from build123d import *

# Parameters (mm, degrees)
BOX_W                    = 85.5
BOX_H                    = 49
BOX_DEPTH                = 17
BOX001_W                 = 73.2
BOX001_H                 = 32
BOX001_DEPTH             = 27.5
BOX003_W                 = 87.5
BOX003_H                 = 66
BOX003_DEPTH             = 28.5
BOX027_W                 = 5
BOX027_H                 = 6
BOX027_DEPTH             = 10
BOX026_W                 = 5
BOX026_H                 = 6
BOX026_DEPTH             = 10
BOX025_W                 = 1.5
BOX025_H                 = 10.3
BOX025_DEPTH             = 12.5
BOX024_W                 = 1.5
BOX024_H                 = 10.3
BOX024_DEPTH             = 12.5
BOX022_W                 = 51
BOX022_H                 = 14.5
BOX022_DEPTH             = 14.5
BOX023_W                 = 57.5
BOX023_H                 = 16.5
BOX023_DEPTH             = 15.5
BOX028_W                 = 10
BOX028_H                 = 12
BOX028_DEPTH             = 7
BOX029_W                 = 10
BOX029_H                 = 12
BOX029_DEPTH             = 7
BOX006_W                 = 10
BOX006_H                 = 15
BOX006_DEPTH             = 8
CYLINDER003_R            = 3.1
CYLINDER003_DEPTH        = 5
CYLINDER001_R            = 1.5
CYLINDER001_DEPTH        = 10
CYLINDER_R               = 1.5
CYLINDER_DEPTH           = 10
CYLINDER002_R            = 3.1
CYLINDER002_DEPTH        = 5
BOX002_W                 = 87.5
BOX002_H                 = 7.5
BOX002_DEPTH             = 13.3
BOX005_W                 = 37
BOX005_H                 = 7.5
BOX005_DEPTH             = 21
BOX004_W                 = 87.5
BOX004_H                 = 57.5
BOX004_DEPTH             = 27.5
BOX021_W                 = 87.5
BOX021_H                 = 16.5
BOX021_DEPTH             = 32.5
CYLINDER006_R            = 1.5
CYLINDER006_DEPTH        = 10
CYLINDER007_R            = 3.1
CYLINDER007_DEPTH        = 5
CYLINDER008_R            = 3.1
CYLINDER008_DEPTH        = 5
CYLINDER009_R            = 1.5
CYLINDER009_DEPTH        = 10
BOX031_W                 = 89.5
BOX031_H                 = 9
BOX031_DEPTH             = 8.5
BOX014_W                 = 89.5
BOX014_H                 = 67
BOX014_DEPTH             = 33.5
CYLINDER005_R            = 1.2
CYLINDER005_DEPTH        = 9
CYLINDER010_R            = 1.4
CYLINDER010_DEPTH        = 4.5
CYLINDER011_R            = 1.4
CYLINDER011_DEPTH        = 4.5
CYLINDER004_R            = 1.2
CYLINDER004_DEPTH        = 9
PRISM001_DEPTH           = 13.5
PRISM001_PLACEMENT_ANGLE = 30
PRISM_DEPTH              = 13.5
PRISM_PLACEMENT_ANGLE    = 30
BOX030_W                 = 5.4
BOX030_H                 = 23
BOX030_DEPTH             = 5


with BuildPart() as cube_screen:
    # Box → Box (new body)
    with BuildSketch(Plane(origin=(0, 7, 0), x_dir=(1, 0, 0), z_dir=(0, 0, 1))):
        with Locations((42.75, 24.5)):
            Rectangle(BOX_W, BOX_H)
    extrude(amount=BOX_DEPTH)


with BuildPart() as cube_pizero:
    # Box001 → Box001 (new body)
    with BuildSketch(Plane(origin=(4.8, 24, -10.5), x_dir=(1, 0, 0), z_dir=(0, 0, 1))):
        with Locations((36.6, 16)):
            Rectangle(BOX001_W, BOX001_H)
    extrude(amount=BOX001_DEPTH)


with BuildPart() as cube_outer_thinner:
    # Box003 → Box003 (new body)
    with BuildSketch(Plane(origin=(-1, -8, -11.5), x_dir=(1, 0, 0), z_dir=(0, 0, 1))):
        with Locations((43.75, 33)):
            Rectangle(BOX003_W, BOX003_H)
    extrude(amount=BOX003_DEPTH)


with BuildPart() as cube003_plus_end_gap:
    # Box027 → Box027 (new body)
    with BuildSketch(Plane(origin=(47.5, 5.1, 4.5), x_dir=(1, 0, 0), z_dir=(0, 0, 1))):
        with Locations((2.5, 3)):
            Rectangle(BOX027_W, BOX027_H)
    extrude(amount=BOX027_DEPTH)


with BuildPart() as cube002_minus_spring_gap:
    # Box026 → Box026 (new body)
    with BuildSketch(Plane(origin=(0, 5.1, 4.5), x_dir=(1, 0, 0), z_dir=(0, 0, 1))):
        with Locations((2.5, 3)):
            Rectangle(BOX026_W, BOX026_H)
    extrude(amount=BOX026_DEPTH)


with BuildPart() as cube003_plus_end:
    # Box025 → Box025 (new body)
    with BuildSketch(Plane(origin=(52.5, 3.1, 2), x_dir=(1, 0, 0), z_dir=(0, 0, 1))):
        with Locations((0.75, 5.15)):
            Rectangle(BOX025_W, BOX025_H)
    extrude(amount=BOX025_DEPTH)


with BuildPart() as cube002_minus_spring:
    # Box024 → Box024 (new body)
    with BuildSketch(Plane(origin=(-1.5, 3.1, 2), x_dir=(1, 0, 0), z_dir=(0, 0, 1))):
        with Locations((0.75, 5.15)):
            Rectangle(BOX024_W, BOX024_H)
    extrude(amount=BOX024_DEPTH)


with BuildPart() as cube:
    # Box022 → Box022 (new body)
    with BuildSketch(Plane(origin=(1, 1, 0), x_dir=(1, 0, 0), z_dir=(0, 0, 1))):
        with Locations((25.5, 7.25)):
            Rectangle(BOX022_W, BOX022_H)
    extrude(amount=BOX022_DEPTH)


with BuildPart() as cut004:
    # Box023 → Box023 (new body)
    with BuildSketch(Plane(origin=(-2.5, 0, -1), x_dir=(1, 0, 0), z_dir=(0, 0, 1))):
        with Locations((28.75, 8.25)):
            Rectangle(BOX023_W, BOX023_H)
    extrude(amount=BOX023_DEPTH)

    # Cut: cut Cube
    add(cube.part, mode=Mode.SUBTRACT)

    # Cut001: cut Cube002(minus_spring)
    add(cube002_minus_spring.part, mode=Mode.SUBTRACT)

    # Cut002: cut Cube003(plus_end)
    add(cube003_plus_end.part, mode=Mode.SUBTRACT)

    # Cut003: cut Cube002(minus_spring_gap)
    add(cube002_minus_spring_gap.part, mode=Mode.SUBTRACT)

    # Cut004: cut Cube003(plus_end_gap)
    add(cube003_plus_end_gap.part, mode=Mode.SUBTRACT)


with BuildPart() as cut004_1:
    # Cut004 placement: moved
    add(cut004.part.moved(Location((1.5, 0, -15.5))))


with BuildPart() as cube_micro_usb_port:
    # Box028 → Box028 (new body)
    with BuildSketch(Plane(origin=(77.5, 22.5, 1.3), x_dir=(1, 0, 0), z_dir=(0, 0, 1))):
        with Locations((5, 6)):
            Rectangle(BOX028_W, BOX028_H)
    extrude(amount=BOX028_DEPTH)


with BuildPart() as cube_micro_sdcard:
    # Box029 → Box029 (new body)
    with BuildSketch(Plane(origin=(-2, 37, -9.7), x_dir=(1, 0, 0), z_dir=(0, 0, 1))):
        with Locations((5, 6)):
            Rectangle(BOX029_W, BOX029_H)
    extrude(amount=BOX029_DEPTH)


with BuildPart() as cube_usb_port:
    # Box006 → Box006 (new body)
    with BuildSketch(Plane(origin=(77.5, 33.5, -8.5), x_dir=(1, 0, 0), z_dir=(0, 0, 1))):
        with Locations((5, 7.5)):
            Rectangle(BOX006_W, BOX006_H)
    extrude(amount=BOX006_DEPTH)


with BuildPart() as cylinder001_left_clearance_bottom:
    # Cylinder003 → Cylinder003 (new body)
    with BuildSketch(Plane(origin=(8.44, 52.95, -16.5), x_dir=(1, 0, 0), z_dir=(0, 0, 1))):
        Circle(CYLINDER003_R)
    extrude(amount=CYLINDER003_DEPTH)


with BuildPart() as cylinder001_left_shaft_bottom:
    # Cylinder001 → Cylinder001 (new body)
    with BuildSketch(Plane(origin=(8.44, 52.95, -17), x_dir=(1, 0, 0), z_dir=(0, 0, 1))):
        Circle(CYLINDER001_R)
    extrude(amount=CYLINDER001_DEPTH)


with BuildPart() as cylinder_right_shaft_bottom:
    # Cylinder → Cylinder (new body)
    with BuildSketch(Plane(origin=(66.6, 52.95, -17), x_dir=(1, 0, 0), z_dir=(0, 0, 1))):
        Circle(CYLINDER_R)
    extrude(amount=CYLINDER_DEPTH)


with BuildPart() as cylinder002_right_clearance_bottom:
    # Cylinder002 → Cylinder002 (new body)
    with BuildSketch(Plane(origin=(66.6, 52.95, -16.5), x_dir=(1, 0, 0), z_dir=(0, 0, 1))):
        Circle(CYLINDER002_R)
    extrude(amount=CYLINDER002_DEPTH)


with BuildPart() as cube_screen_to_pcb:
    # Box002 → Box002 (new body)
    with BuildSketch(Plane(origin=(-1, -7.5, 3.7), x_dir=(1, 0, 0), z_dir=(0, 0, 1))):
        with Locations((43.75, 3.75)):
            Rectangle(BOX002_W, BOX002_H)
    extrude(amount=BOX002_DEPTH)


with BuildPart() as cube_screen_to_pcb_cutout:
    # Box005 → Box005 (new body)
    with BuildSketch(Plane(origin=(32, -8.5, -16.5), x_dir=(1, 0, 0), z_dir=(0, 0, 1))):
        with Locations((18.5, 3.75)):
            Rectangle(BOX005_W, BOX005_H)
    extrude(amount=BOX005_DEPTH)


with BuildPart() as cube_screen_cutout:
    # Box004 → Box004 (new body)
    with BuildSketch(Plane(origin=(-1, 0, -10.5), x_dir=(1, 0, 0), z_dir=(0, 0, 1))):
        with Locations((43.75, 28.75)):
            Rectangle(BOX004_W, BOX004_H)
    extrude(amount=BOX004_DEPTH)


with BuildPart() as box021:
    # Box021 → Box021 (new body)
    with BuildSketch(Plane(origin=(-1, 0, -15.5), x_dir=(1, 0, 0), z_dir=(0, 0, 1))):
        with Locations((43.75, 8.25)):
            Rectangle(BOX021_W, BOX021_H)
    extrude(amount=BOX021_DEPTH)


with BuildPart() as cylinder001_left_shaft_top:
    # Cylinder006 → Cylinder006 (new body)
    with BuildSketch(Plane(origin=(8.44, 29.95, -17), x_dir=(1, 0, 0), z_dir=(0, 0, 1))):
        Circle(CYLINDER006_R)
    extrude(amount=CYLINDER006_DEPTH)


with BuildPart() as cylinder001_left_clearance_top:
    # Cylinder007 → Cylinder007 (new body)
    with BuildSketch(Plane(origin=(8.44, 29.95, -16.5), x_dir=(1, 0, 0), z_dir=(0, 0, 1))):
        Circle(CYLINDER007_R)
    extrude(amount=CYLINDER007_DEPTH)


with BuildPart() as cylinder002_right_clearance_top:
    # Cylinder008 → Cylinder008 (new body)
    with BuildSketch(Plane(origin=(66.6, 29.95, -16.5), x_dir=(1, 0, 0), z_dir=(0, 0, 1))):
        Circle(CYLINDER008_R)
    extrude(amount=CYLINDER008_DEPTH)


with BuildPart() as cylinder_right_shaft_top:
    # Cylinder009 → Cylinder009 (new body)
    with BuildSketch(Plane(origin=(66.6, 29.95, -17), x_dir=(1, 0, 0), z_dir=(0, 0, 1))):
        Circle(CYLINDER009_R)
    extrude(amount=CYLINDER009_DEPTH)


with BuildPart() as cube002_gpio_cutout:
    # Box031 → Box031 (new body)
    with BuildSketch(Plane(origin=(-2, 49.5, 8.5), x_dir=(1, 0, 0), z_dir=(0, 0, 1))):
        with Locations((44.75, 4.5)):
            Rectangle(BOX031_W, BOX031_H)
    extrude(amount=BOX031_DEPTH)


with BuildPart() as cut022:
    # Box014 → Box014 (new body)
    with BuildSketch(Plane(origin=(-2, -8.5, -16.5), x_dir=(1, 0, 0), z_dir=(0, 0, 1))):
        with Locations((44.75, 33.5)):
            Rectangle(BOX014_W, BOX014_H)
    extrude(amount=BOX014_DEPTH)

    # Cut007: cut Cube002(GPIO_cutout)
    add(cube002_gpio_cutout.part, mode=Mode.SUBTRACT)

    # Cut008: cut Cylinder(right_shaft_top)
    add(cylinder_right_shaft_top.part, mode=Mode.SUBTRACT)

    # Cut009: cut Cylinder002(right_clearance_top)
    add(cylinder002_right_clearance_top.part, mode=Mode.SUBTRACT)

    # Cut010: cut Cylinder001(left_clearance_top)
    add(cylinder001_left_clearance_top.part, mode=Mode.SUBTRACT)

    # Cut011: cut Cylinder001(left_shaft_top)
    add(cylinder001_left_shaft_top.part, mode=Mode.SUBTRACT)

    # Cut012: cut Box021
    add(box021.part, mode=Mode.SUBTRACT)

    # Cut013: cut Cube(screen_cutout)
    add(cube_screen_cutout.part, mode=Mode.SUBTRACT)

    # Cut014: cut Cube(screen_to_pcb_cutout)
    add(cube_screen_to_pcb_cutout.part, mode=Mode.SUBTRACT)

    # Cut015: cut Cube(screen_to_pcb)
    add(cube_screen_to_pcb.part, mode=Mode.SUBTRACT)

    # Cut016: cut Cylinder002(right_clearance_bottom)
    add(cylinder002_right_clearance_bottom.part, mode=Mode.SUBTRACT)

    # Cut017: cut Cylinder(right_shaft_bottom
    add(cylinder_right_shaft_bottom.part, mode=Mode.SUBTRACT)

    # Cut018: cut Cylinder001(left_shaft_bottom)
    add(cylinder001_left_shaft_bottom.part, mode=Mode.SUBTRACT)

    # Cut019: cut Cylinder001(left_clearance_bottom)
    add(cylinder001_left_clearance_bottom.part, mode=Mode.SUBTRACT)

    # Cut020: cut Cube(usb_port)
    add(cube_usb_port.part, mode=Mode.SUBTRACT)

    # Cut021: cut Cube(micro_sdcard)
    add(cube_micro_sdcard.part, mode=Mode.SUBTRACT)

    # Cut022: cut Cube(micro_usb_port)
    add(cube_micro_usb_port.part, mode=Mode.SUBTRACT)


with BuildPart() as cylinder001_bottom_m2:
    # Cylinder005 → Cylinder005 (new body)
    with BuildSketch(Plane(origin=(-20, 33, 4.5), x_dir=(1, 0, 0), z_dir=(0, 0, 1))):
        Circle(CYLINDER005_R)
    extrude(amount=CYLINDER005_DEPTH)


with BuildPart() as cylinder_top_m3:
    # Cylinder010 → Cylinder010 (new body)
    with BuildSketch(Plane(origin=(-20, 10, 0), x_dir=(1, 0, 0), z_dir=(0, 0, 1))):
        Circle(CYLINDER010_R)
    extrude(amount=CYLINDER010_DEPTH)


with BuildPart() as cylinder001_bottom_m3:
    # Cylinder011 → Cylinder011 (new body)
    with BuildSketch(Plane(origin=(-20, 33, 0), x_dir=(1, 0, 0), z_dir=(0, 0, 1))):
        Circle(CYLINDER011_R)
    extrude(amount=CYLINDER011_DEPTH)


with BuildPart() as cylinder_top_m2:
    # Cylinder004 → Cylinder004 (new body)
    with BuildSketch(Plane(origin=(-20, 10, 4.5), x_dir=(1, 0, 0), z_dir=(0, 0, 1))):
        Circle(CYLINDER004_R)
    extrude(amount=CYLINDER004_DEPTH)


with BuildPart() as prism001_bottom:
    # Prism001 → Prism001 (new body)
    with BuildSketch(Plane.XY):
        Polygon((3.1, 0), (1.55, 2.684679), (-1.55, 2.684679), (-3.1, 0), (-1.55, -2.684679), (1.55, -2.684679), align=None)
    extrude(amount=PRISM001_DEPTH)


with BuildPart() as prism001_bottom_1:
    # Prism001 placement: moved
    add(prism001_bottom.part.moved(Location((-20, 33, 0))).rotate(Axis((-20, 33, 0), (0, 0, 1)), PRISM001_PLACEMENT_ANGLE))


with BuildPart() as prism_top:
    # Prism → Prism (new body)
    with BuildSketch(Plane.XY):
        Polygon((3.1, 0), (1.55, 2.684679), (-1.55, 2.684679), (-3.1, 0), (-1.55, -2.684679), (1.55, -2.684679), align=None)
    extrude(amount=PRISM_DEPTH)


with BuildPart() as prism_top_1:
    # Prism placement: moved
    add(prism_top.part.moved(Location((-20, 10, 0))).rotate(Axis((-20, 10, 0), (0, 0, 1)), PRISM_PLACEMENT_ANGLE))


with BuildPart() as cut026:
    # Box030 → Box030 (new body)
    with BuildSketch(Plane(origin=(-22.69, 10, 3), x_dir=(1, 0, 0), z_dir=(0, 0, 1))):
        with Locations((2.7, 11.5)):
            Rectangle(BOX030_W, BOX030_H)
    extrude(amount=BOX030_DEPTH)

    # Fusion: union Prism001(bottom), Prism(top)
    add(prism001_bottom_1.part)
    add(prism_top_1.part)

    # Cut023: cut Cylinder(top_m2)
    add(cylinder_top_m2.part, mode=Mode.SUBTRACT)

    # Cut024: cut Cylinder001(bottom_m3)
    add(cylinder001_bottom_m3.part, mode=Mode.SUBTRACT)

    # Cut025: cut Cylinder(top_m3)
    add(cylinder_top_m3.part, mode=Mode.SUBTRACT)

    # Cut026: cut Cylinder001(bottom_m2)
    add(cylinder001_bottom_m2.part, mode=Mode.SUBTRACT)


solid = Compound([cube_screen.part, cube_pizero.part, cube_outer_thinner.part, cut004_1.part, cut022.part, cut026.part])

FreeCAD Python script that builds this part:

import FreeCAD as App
import Part
import Sketcher
from FreeCAD import Vector
Q = App.Units.Quantity


def add_polygon(sketch, points):
    """Adds a closed chain of lines whose ends are joined by coincident constraints."""
    first, n = sketch.GeometryCount, len(points)
    for a, b in zip(points, points[1:] + points[:1]):
        sketch.addGeometry(Part.LineSegment(App.Vector(*a, 0), App.Vector(*b, 0)), False)
    for i in range(n):
        sketch.addConstraint(Sketcher.Constraint("Coincident", first + i, 2, first + (i + 1) % n, 1))

doc = App.newDocument("Part")
params = doc.addObject("Spreadsheet::Sheet", "Params")
for row, (alias, value) in enumerate([
    ("sketch1_height", "49 mm"),
    ("sketch1_width", "85.5 mm"),
    ("pad1_length", "17 mm"),
    ("sketch2_height", "32 mm"),
    ("sketch2_width", "73.2 mm"),
    ("pad2_length", "27.5 mm"),
    ("sketch3_height", "66 mm"),
    ("sketch3_width", "87.5 mm"),
    ("pad3_length", "28.5 mm"),
    ("sketch4_width", "5 mm"),
    ("sketch4_height", "6 mm"),
    ("pad4_length", "10 mm"),
    ("sketch5_width", "5 mm"),
    ("sketch5_height", "6 mm"),
    ("pad5_length", "10 mm"),
    ("sketch6_width", "1.5 mm"),
    ("sketch6_height", "10.3 mm"),
    ("pad6_length", "12.5 mm"),
    ("sketch7_width", "1.5 mm"),
    ("sketch7_height", "10.3 mm"),
    ("pad7_length", "12.5 mm"),
    ("sketch8_width", "51 mm"),
    ("sketch8_height", "14.5 mm"),
    ("pad8_length", "14.5 mm"),
    ("sketch9_width", "57.5 mm"),
    ("sketch9_height", "16.5 mm"),
    ("pad9_length", "15.5 mm"),
    ("sketch10_width", "10 mm"),
    ("sketch10_height", "12 mm"),
    ("pad10_length", "7 mm"),
    ("sketch11_width", "10 mm"),
    ("sketch11_height", "12 mm"),
    ("pad11_length", "7 mm"),
    ("sketch12_width", "10 mm"),
    ("sketch12_height", "15 mm"),
    ("pad12_length", "8 mm"),
    ("sketch13_diameter", "6.2 mm"),
    ("pad13_length", "5 mm"),
    ("sketch14_diameter", "3 mm"),
    ("pad14_length", "10 mm"),
    ("sketch15_diameter", "3 mm"),
    ("pad15_length", "10 mm"),
    ("sketch16_diameter", "6.2 mm"),
    ("pad16_length", "5 mm"),
    ("sketch17_width", "87.5 mm"),
    ("sketch17_height", "7.5 mm"),
    ("pad17_length", "13.3 mm"),
    ("sketch18_width", "37 mm"),
    ("sketch18_height", "7.5 mm"),
    ("pad18_length", "21 mm"),
    ("sketch19_width", "87.5 mm"),
    ("sketch19_height", "57.5 mm"),
    ("pad19_length", "27.5 mm"),
    ("sketch20_width", "87.5 mm"),
    ("sketch20_height", "16.5 mm"),
    ("pad20_length", "32.5 mm"),
    ("sketch21_diameter", "3 mm"),
    ("pad21_length", "10 mm"),
    ("sketch22_diameter", "6.2 mm"),
    ("pad22_length", "5 mm"),
    ("sketch23_diameter", "6.2 mm"),
    ("pad23_length", "5 mm"),
    ("sketch24_diameter", "3 mm"),
    ("pad24_length", "10 mm"),
    ("sketch25_height", "9 mm"),
    ("sketch25_width", "89.5 mm"),
    ("pad25_length", "8.5 mm"),
    ("sketch26_height", "67 mm"),
    ("sketch26_width", "89.5 mm"),
    ("pad26_length", "33.5 mm"),
    ("sketch27_diameter", "2.4 mm"),
    ("pad27_length", "9 mm"),
    ("sketch28_diameter", "2.8 mm"),
    ("pad28_length", "4.5 mm"),
    ("sketch29_diameter", "2.8 mm"),
    ("pad29_length", "4.5 mm"),
    ("sketch30_diameter", "2.4 mm"),
    ("pad30_length", "9 mm"),
    ("sketch31_width", "3.1 mm"),
    ("sketch31_length", "3.1 mm"),
    ("pad31_length", "13.5 mm"),
    ("sketch32_width", "3.1 mm"),
    ("sketch32_length", "3.1 mm"),
    ("pad32_length", "13.5 mm"),
    ("sketch33_height", "23 mm"),
    ("sketch33_width", "5.4 mm"),
    ("pad33_length", "5 mm"),
], start=1):
    params.set(f"A{row}", alias)
    params.set(f"B{row}", "=" + value)
    params.setAlias(f"B{row}", alias)

body = doc.addObject("PartDesign::Body", "Body")

# Sketch on XY plane
sketch1 = body.newObject("Sketcher::SketchObject", "Sketch")
sketch1.AttachmentSupport = (doc.getObject("XY_Plane"), [""])
sketch1.MapMode = "FlatFace"
add_polygon(sketch1, [(0, 56), (0, 7), (86, 7), (86, 56)])  # lines 0-3
sketch1.addConstraint([
    Sketcher.Constraint("Vertical", 0),
    Sketcher.Constraint("Horizontal", 1),
    Sketcher.Constraint("Vertical", 2),
    Sketcher.Constraint("Horizontal", 3),
    Sketcher.Constraint("PointOnObject", 0, 2, -2),
    Sketcher.Constraint("DistanceY", 0, 2, 0, 1, 49.0),
    Sketcher.Constraint("DistanceX", 1, 1, 1, 2, 85.5),
    Sketcher.Constraint("DistanceY", -1, 1, 0, 2, 7.0),
])
sketch1.setExpression("Constraints[9]", "Params.sketch1_height")
sketch1.setExpression("Constraints[10]", "Params.sketch1_width")
pad1 = body.newObject("PartDesign::Pad", "Pad")
pad1.Profile = sketch1
pad1.setExpression("Length", "Params.pad1_length")
body2 = doc.addObject("PartDesign::Body", "Body001")

# Sketch on XY plane
sketch2 = body2.newObject("Sketcher::SketchObject", "Sketch001")
sketch2.AttachmentSupport = (doc.getObject("XY_Plane001"), [""])
sketch2.MapMode = "FlatFace"
sketch2.AttachmentOffset = App.Placement(Vector(0, 0, -10.5), App.Rotation())
add_polygon(sketch2, [(5, 56), (5, 24), (78, 24), (78, 56)])  # lines 0-3
sketch2.addConstraint([
    Sketcher.Constraint("Vertical", 0),
    Sketcher.Constraint("Horizontal", 1),
    Sketcher.Constraint("Vertical", 2),
    Sketcher.Constraint("Horizontal", 3),
    Sketcher.Constraint("DistanceY", 0, 2, 0, 1, 32.0),
    Sketcher.Constraint("DistanceX", 1, 1, 1, 2, 73.2),
    Sketcher.Constraint("DistanceY", -1, 1, 0, 2, 24.0),
    Sketcher.Constraint("DistanceX", -1, 1, 1, 2, 78.0),
])
sketch2.setExpression("Constraints[8]", "Params.sketch2_height")
sketch2.setExpression("Constraints[9]", "Params.sketch2_width")
pad2 = body2.newObject("PartDesign::Pad", "Pad001")
pad2.Profile = sketch2
pad2.setExpression("Length", "Params.pad2_length")
body3 = doc.addObject("PartDesign::Body", "Body002")

# Sketch on XY plane
sketch3 = body3.newObject("Sketcher::SketchObject", "Sketch002")
sketch3.AttachmentSupport = (doc.getObject("XY_Plane002"), [""])
sketch3.MapMode = "FlatFace"
sketch3.AttachmentOffset = App.Placement(Vector(0, 0, -11.5), App.Rotation())
add_polygon(sketch3, [(-1, 58), (-1, -8), (86, -8), (86, 58)])  # lines 0-3
sketch3.addConstraint([
    Sketcher.Constraint("Vertical", 0),
    Sketcher.Constraint("Horizontal", 1),
    Sketcher.Constraint("Vertical", 2),
    Sketcher.Constraint("Horizontal", 3),
    Sketcher.Constraint("DistanceY", 0, 2, 0, 1, 66.0),
    Sketcher.Constraint("DistanceX", 1, 1, 1, 2, 87.5),
    Sketcher.Constraint("DistanceX", 0, 2, -1, 1, 1.0),
    Sketcher.Constraint("DistanceY", 0, 2, -1, 1, 8.0),
])
sketch3.setExpression("Constraints[8]", "Params.sketch3_height")
sketch3.setExpression("Constraints[9]", "Params.sketch3_width")
pad3 = body3.newObject("PartDesign::Pad", "Pad002")
pad3.Profile = sketch3
pad3.setExpression("Length", "Params.pad3_length")
body4 = doc.addObject("PartDesign::Body", "Body003")

# Sketch on XY plane
sketch4 = body4.newObject("Sketcher::SketchObject", "Sketch003")
sketch4.AttachmentSupport = (doc.getObject("XY_Plane003"), [""])
sketch4.MapMode = "FlatFace"
sketch4.AttachmentOffset = App.Placement(Vector(0, 0, 4.5), App.Rotation())
add_polygon(sketch4, [(48, 11), (48, 5), (52, 5), (52, 11)])  # lines 0-3
sketch4.addConstraint([
    Sketcher.Constraint("Vertical", 0),
    Sketcher.Constraint("Horizontal", 1),
    Sketcher.Constraint("Vertical", 2),
    Sketcher.Constraint("Horizontal", 3),
    Sketcher.Constraint("DistanceX", 1, 1, 1, 2, 5.0),
    Sketcher.Constraint("DistanceY", 0, 2, 0, 1, 6.0),
    Sketcher.Constraint("DistanceX", -1, 1, 0, 2, 47.5),
    Sketcher.Constraint("DistanceY", -1, 1, 0, 2, 5.1),
])
sketch4.setExpression("Constraints[8]", "Params.sketch4_width")
sketch4.setExpression("Constraints[9]", "Params.sketch4_height")
pad4 = body4.newObject("PartDesign::Pad", "Pad003")
pad4.Profile = sketch4
pad4.setExpression("Length", "Params.pad4_length")
body5 = doc.addObject("PartDesign::Body", "Body004")

# Sketch on XY plane
sketch5 = body5.newObject("Sketcher::SketchObject", "Sketch004")
sketch5.AttachmentSupport = (doc.getObject("XY_Plane004"), [""])
sketch5.MapMode = "FlatFace"
sketch5.AttachmentOffset = App.Placement(Vector(0, 0, 4.5), App.Rotation())
add_polygon(sketch5, [(0, 11), (0, 5), (5, 5), (5, 11)])  # lines 0-3
sketch5.addConstraint([
    Sketcher.Constraint("Vertical", 0),
    Sketcher.Constraint("Horizontal", 1),
    Sketcher.Constraint("Vertical", 2),
    Sketcher.Constraint("Horizontal", 3),
    Sketcher.Constraint("PointOnObject", 0, 2, -2),
    Sketcher.Constraint("DistanceX", 1, 1, 1, 2, 5.0),
    Sketcher.Constraint("DistanceY", 0, 2, 0, 1, 6.0),
    Sketcher.Constraint("DistanceY", -1, 1, 0, 2, 5.1),
])
sketch5.setExpression("Constraints[9]", "Params.sketch5_width")
sketch5.setExpression("Constraints[10]", "Params.sketch5_height")
pad5 = body5.newObject("PartDesign::Pad", "Pad004")
pad5.Profile = sketch5
pad5.setExpression("Length", "Params.pad5_length")
body6 = doc.addObject("PartDesign::Body", "Body005")

# Sketch on XY plane
sketch6 = body6.newObject("Sketcher::SketchObject", "Sketch005")
sketch6.AttachmentSupport = (doc.getObject("XY_Plane005"), [""])
sketch6.MapMode = "FlatFace"
sketch6.AttachmentOffset = App.Placement(Vector(0, 0, 2), App.Rotation())
add_polygon(sketch6, [(52.5, 13.4), (52.5, 3.1), (54, 3.1), (54, 13.4)])  # lines 0-3
sketch6.addConstraint([
    Sketcher.Constraint("Vertical", 0),
    Sketcher.Constraint("Horizontal", 1),
    Sketcher.Constraint("Vertical", 2),
    Sketcher.Constraint("Horizontal", 3),
    Sketcher.Constraint("DistanceX", 1, 1, 1, 2, 1.5),
    Sketcher.Constraint("DistanceY", 0, 2, 0, 1, 10.3),
    Sketcher.Constraint("DistanceX", -1, 1, 1, 2, 54.0),
    Sketcher.Constraint("DistanceY", -1, 1, 0, 2, 3.1),
])
sketch6.setExpression("Constraints[8]", "Params.sketch6_width")
sketch6.setExpression("Constraints[9]", "Params.sketch6_height")
pad6 = body6.newObject("PartDesign::Pad", "Pad005")
pad6.Profile = sketch6
pad6.setExpression("Length", "Params.pad6_length")
body7 = doc.addObject("PartDesign::Body", "Body006")

# Sketch on XY plane
sketch7 = body7.newObject("Sketcher::SketchObject", "Sketch006")
sketch7.AttachmentSupport = (doc.getObject("XY_Plane006"), [""])
sketch7.MapMode = "FlatFace"
sketch7.AttachmentOffset = App.Placement(Vector(0, 0, 2), App.Rotation())
add_polygon(sketch7, [(-1.5, 13.4), (-1.5, 3.1), (0, 3.1), (0, 13.4)])  # lines 0-3
sketch7.addConstraint([
    Sketcher.Constraint("Vertical", 0),
    Sketcher.Constraint("Horizontal", 1),
    Sketcher.Constraint("Vertical", 2),
    Sketcher.Constraint("Horizontal", 3),
    Sketcher.Constraint("PointOnObject", 1, 2, -2),
    Sketcher.Constraint("DistanceX", 1, 1, 1, 2, 1.5),
    Sketcher.Constraint("DistanceY", 0, 2, 0, 1, 10.3),
    Sketcher.Constraint("DistanceY", -1, 1, 0, 2, 3.1),
])
sketch7.setExpression("Constraints[9]", "Params.sketch7_width")
sketch7.setExpression("Constraints[10]", "Params.sketch7_height")
pad7 = body7.newObject("PartDesign::Pad", "Pad006")
pad7.Profile = sketch7
pad7.setExpression("Length", "Params.pad7_length")
body8 = doc.addObject("PartDesign::Body", "Body007")

# Sketch on XY plane
sketch8 = body8.newObject("Sketcher::SketchObject", "Sketch007")
sketch8.AttachmentSupport = (doc.getObject("XY_Plane007"), [""])
sketch8.MapMode = "FlatFace"
add_polygon(sketch8, [(1, 16), (1, 1), (52, 1), (52, 16)])  # lines 0-3
sketch8.addConstraint([
    Sketcher.Constraint("Vertical", 0),
    Sketcher.Constraint("Horizontal", 1),
    Sketcher.Constraint("Vertical", 2),
    Sketcher.Constraint("Horizontal", 3),
    Sketcher.Constraint("DistanceX", 1, 1, 1, 2, 51.0),
    Sketcher.Constraint("DistanceY", 0, 2, 0, 1, 14.5),
    Sketcher.Constraint("DistanceX", -1, 1, 0, 2, 1.0),
    Sketcher.Constraint("DistanceY", -1, 1, 0, 2, 1.0),
])
sketch8.setExpression("Constraints[8]", "Params.sketch8_width")
sketch8.setExpression("Constraints[9]", "Params.sketch8_height")
pad8 = body8.newObject("PartDesign::Pad", "Pad007")
pad8.Profile = sketch8
pad8.setExpression("Length", "Params.pad8_length")
body9 = doc.addObject("PartDesign::Body", "Body008")

# Sketch on XY plane
sketch9 = body9.newObject("Sketcher::SketchObject", "Sketch008")
sketch9.AttachmentSupport = (doc.getObject("XY_Plane008"), [""])
sketch9.MapMode = "FlatFace"
sketch9.AttachmentOffset = App.Placement(Vector(0, 0, -1), App.Rotation())
add_polygon(sketch9, [(-2, 16), (-2, 0), (55, 0), (55, 16)])  # lines 0-3
sketch9.addConstraint([
    Sketcher.Constraint("Vertical", 0),
    Sketcher.Constraint("Horizontal", 1),
    Sketcher.Constraint("Vertical", 2),
    Sketcher.Constraint("Horizontal", 3),
    Sketcher.Constraint("PointOnObject", 0, 2, -1),
    Sketcher.Constraint("DistanceX", 1, 1, 1, 2, 57.5),
    Sketcher.Constraint("DistanceY", 0, 2, 0, 1, 16.5),
    Sketcher.Constraint("DistanceX", -1, 1, 1, 2, 55.0),
])
sketch9.setExpression("Constraints[9]", "Params.sketch9_width")
sketch9.setExpression("Constraints[10]", "Params.sketch9_height")
pad9 = body9.newObject("PartDesign::Pad", "Pad008")
pad9.Profile = sketch9
pad9.setExpression("Length", "Params.pad9_length")
doc.recompute()

boolean = body9.newObject("PartDesign::Boolean", "Boolean")
boolean.Type = "Cut"
boolean.addObjects([body8])
doc.recompute()

boolean2 = body9.newObject("PartDesign::Boolean", "Boolean001")
boolean2.Type = "Cut"
boolean2.addObjects([body7])
doc.recompute()

boolean3 = body9.newObject("PartDesign::Boolean", "Boolean002")
boolean3.Type = "Cut"
boolean3.addObjects([body6])
doc.recompute()

boolean4 = body9.newObject("PartDesign::Boolean", "Boolean003")
boolean4.Type = "Cut"
boolean4.addObjects([body5])
doc.recompute()

boolean5 = body9.newObject("PartDesign::Boolean", "Boolean004")
boolean5.Type = "Cut"
boolean5.addObjects([body4])
body10 = doc.addObject("PartDesign::Body", "Body009")
doc.recompute()

body9.Placement = App.Placement(Vector(1.5, 0, -15.5), App.Rotation(Vector(0, 0, 1), 0))
boolean6 = body10.newObject("PartDesign::Boolean", "Boolean005")
boolean6.Type = "Fuse"
boolean6.addObjects([body9])
body11 = doc.addObject("PartDesign::Body", "Body010")

# Sketch on XY plane
sketch10 = body11.newObject("Sketcher::SketchObject", "Sketch009")
sketch10.AttachmentSupport = (doc.getObject("XY_Plane010"), [""])
sketch10.MapMode = "FlatFace"
sketch10.AttachmentOffset = App.Placement(Vector(0, 0, 1.3), App.Rotation())
add_polygon(sketch10, [(78, 34), (78, 22), (88, 22), (88, 34)])  # lines 0-3
sketch10.addConstraint([
    Sketcher.Constraint("Vertical", 0),
    Sketcher.Constraint("Horizontal", 1),
    Sketcher.Constraint("Vertical", 2),
    Sketcher.Constraint("Horizontal", 3),
    Sketcher.Constraint("DistanceX", 1, 1, 1, 2, 10.0),
    Sketcher.Constraint("DistanceY", 0, 2, 0, 1, 12.0),
    Sketcher.Constraint("DistanceX", -1, 1, 0, 2, 77.5),
    Sketcher.Constraint("DistanceY", -1, 1, 0, 2, 22.5),
])
sketch10.setExpression("Constraints[8]", "Params.sketch10_width")
sketch10.setExpression("Constraints[9]", "Params.sketch10_height")
pad10 = body11.newObject("PartDesign::Pad", "Pad009")
pad10.Profile = sketch10
pad10.setExpression("Length", "Params.pad10_length")
body12 = doc.addObject("PartDesign::Body", "Body011")

# Sketch on XY plane
sketch11 = body12.newObject("Sketcher::SketchObject", "Sketch010")
sketch11.AttachmentSupport = (doc.getObject("XY_Plane011"), [""])
sketch11.MapMode = "FlatFace"
sketch11.AttachmentOffset = App.Placement(Vector(0, 0, -9.7), App.Rotation())
add_polygon(sketch11, [(-2, 49), (-2, 37), (8, 37), (8, 49)])  # lines 0-3
sketch11.addConstraint([
    Sketcher.Constraint("Vertical", 0),
    Sketcher.Constraint("Horizontal", 1),
    Sketcher.Constraint("Vertical", 2),
    Sketcher.Constraint("Horizontal", 3),
    Sketcher.Constraint("DistanceX", 1, 1, 1, 2, 10.0),
    Sketcher.Constraint("DistanceY", 0, 2, 0, 1, 12.0),
    Sketcher.Constraint("DistanceX", 0, 2, -1, 1, 2.0),
    Sketcher.Constraint("DistanceY", -1, 1, 0, 2, 37.0),
])
sketch11.setExpression("Constraints[8]", "Params.sketch11_width")
sketch11.setExpression("Constraints[9]", "Params.sketch11_height")
pad11 = body12.newObject("PartDesign::Pad", "Pad010")
pad11.Profile = sketch11
pad11.setExpression("Length", "Params.pad11_length")
body13 = doc.addObject("PartDesign::Body", "Body012")

# Sketch on XY plane
sketch12 = body13.newObject("Sketcher::SketchObject", "Sketch011")
sketch12.AttachmentSupport = (doc.getObject("XY_Plane012"), [""])
sketch12.MapMode = "FlatFace"
sketch12.AttachmentOffset = App.Placement(Vector(0, 0, -8.5), App.Rotation())
add_polygon(sketch12, [(78, 48), (78, 34), (88, 34), (88, 48)])  # lines 0-3
sketch12.addConstraint([
    Sketcher.Constraint("Vertical", 0),
    Sketcher.Constraint("Horizontal", 1),
    Sketcher.Constraint("Vertical", 2),
    Sketcher.Constraint("Horizontal", 3),
    Sketcher.Constraint("DistanceX", 1, 1, 1, 2, 10.0),
    Sketcher.Constraint("DistanceY", 0, 2, 0, 1, 15.0),
    Sketcher.Constraint("DistanceX", -1, 1, 0, 2, 77.5),
    Sketcher.Constraint("DistanceY", -1, 1, 0, 2, 33.5),
])
sketch12.setExpression("Constraints[8]", "Params.sketch12_width")
sketch12.setExpression("Constraints[9]", "Params.sketch12_height")
pad12 = body13.newObject("PartDesign::Pad", "Pad011")
pad12.Profile = sketch12
pad12.setExpression("Length", "Params.pad12_length")
body14 = doc.addObject("PartDesign::Body", "Body013")

# Sketch on XY plane
sketch13 = body14.newObject("Sketcher::SketchObject", "Sketch012")
sketch13.AttachmentSupport = (doc.getObject("XY_Plane013"), [""])
sketch13.MapMode = "FlatFace"
sketch13.AttachmentOffset = App.Placement(Vector(0, 0, -16.5), App.Rotation())
sketch13.addGeometry(Part.Circle(Vector(8.4, 53, 0), Vector(0, 0, 1), 3.1), False)
sketch13.addConstraint([
    Sketcher.Constraint("Diameter", 0, 6.2),
    Sketcher.Constraint("DistanceX", -1, 1, 0, 3, 8.44),
    Sketcher.Constraint("DistanceY", -1, 1, 0, 3, 52.95),
])
sketch13.setExpression("Constraints[0]", "Params.sketch13_diameter")
pad13 = body14.newObject("PartDesign::Pad", "Pad012")
pad13.Profile = sketch13
pad13.setExpression("Length", "Params.pad13_length")
body15 = doc.addObject("PartDesign::Body", "Body014")

# Sketch on XY plane
sketch14 = body15.newObject("Sketcher::SketchObject", "Sketch013")
sketch14.AttachmentSupport = (doc.getObject("XY_Plane014"), [""])
sketch14.MapMode = "FlatFace"
sketch14.AttachmentOffset = App.Placement(Vector(0, 0, -17), App.Rotation())
sketch14.addGeometry(Part.Circle(Vector(8.4, 53, 0), Vector(0, 0, 1), 1.5), False)
sketch14.addConstraint([
    Sketcher.Constraint("Diameter", 0, 3.0),
    Sketcher.Constraint("DistanceX", -1, 1, 0, 3, 8.44),
    Sketcher.Constraint("DistanceY", -1, 1, 0, 3, 52.95),
])
sketch14.setExpression("Constraints[0]", "Params.sketch14_diameter")
pad14 = body15.newObject("PartDesign::Pad", "Pad013")
pad14.Profile = sketch14
pad14.setExpression("Length", "Params.pad14_length")
body16 = doc.addObject("PartDesign::Body", "Body015")

# Sketch on XY plane
sketch15 = body16.newObject("Sketcher::SketchObject", "Sketch014")
sketch15.AttachmentSupport = (doc.getObject("XY_Plane015"), [""])
sketch15.MapMode = "FlatFace"
sketch15.AttachmentOffset = App.Placement(Vector(0, 0, -17), App.Rotation())
sketch15.addGeometry(Part.Circle(Vector(66.6, 53, 0), Vector(0, 0, 1), 1.5), False)
sketch15.addConstraint([
    Sketcher.Constraint("Diameter", 0, 3.0),
    Sketcher.Constraint("DistanceX", -1, 1, 0, 3, 66.6),
    Sketcher.Constraint("DistanceY", -1, 1, 0, 3, 52.95),
])
sketch15.setExpression("Constraints[0]", "Params.sketch15_diameter")
pad15 = body16.newObject("PartDesign::Pad", "Pad014")
pad15.Profile = sketch15
pad15.setExpression("Length", "Params.pad15_length")
body17 = doc.addObject("PartDesign::Body", "Body016")

# Sketch on XY plane
sketch16 = body17.newObject("Sketcher::SketchObject", "Sketch015")
sketch16.AttachmentSupport = (doc.getObject("XY_Plane016"), [""])
sketch16.MapMode = "FlatFace"
sketch16.AttachmentOffset = App.Placement(Vector(0, 0, -16.5), App.Rotation())
sketch16.addGeometry(Part.Circle(Vector(66.6, 53, 0), Vector(0, 0, 1), 3.1), False)
sketch16.addConstraint([
    Sketcher.Constraint("Diameter", 0, 6.2),
    Sketcher.Constraint("DistanceX", -1, 1, 0, 3, 66.6),
    Sketcher.Constraint("DistanceY", -1, 1, 0, 3, 52.95),
])
sketch16.setExpression("Constraints[0]", "Params.sketch16_diameter")
pad16 = body17.newObject("PartDesign::Pad", "Pad015")
pad16.Profile = sketch16
pad16.setExpression("Length", "Params.pad16_length")
body18 = doc.addObject("PartDesign::Body", "Body017")

# Sketch on XY plane
sketch17 = body18.newObject("Sketcher::SketchObject", "Sketch016")
sketch17.AttachmentSupport = (doc.getObject("XY_Plane017"), [""])
sketch17.MapMode = "FlatFace"
sketch17.AttachmentOffset = App.Placement(Vector(0, 0, 3.7), App.Rotation())
add_polygon(sketch17, [(-1, 0), (-1, -8), (86, -8), (86, 0)])  # lines 0-3
sketch17.addConstraint([
    Sketcher.Constraint("Vertical", 0),
    Sketcher.Constraint("Horizontal", 1),
    Sketcher.Constraint("Vertical", 2),
    Sketcher.Constraint("Horizontal", 3),
    Sketcher.Constraint("PointOnObject", 2, 2, -1),
    Sketcher.Constraint("DistanceX", 1, 1, 1, 2, 87.5),
    Sketcher.Constraint("DistanceY", 0, 2, 0, 1, 7.5),
    Sketcher.Constraint("DistanceX", 0, 2, -1, 1, 1.0),
])
sketch17.setExpression("Constraints[9]", "Params.sketch17_width")
sketch17.setExpression("Constraints[10]", "Params.sketch17_height")
pad17 = body18.newObject("PartDesign::Pad", "Pad016")
pad17.Profile = sketch17
pad17.setExpression("Length", "Params.pad17_length")
body19 = doc.addObject("PartDesign::Body", "Body018")

# Sketch on XY plane
sketch18 = body19.newObject("Sketcher::SketchObject", "Sketch017")
sketch18.AttachmentSupport = (doc.getObject("XY_Plane018"), [""])
sketch18.MapMode = "FlatFace"
sketch18.AttachmentOffset = App.Placement(Vector(0, 0, -16.5), App.Rotation())
add_polygon(sketch18, [(32, -1), (32, -8), (69, -8), (69, -1)])  # lines 0-3
sketch18.addConstraint([
    Sketcher.Constraint("Vertical", 0),
    Sketcher.Constraint("Horizontal", 1),
    Sketcher.Constraint("Vertical", 2),
    Sketcher.Constraint("Horizontal", 3),
    Sketcher.Constraint("DistanceX", 1, 1, 1, 2, 37.0),
    Sketcher.Constraint("DistanceY", 0, 2, 0, 1, 7.5),
    Sketcher.Constraint("DistanceX", -1, 1, 0, 2, 32.0),
    Sketcher.Constraint("DistanceY", 2, 2, -1, 1, 1.0),
])
sketch18.setExpression("Constraints[8]", "Params.sketch18_width")
sketch18.setExpression("Constraints[9]", "Params.sketch18_height")
pad18 = body19.newObject("PartDesign::Pad", "Pad017")
pad18.Profile = sketch18
pad18.setExpression("Length", "Params.pad18_length")
body20 = doc.addObject("PartDesign::Body", "Body019")

# Sketch on XY plane
sketch19 = body20.newObject("Sketcher::SketchObject", "Sketch018")
sketch19.AttachmentSupport = (doc.getObject("XY_Plane019"), [""])
sketch19.MapMode = "FlatFace"
sketch19.AttachmentOffset = App.Placement(Vector(0, 0, -10.5), App.Rotation())
add_polygon(sketch19, [(-1, 58), (-1, 0), (86, 0), (86, 58)])  # lines 0-3
sketch19.addConstraint([
    Sketcher.Constraint("Vertical", 0),
    Sketcher.Constraint("Horizontal", 1),
    Sketcher.Constraint("Vertical", 2),
    Sketcher.Constraint("Horizontal", 3),
    Sketcher.Constraint("PointOnObject", 0, 2, -1),
    Sketcher.Constraint("DistanceX", 1, 1, 1, 2, 87.5),
    Sketcher.Constraint("DistanceY", 0, 2, 0, 1, 57.5),
    Sketcher.Constraint("DistanceX", 0, 2, -1, 1, 1.0),
])
sketch19.setExpression("Constraints[9]", "Params.sketch19_width")
sketch19.setExpression("Constraints[10]", "Params.sketch19_height")
pad19 = body20.newObject("PartDesign::Pad", "Pad018")
pad19.Profile = sketch19
pad19.setExpression("Length", "Params.pad19_length")
body21 = doc.addObject("PartDesign::Body", "Body020")

# Sketch on XY plane
sketch20 = body21.newObject("Sketcher::SketchObject", "Sketch019")
sketch20.AttachmentSupport = (doc.getObject("XY_Plane020"), [""])
sketch20.MapMode = "FlatFace"
sketch20.AttachmentOffset = App.Placement(Vector(0, 0, -15.5), App.Rotation())
add_polygon(sketch20, [(-1, 16), (-1, 0), (86, 0), (86, 16)])  # lines 0-3
sketch20.addConstraint([
    Sketcher.Constraint("Vertical", 0),
    Sketcher.Constraint("Horizontal", 1),
    Sketcher.Constraint("Vertical", 2),
    Sketcher.Constraint("Horizontal", 3),
    Sketcher.Constraint("PointOnObject", 0, 2, -1),
    Sketcher.Constraint("DistanceX", 1, 1, 1, 2, 87.5),
    Sketcher.Constraint("DistanceY", 0, 2, 0, 1, 16.5),
    Sketcher.Constraint("DistanceX", 0, 2, -1, 1, 1.0),
])
sketch20.setExpression("Constraints[9]", "Params.sketch20_width")
sketch20.setExpression("Constraints[10]", "Params.sketch20_height")
pad20 = body21.newObject("PartDesign::Pad", "Pad019")
pad20.Profile = sketch20
pad20.setExpression("Length", "Params.pad20_length")
body22 = doc.addObject("PartDesign::Body", "Body021")

# Sketch on XY plane
sketch21 = body22.newObject("Sketcher::SketchObject", "Sketch020")
sketch21.AttachmentSupport = (doc.getObject("XY_Plane021"), [""])
sketch21.MapMode = "FlatFace"
sketch21.AttachmentOffset = App.Placement(Vector(0, 0, -17), App.Rotation())
sketch21.addGeometry(Part.Circle(Vector(8.4, 29.9, 0), Vector(0, 0, 1), 1.5), False)
sketch21.addConstraint([
    Sketcher.Constraint("Diameter", 0, 3.0),
    Sketcher.Constraint("DistanceX", -1, 1, 0, 3, 8.44),
    Sketcher.Constraint("DistanceY", -1, 1, 0, 3, 29.95),
])
sketch21.setExpression("Constraints[0]", "Params.sketch21_diameter")
pad21 = body22.newObject("PartDesign::Pad", "Pad020")
pad21.Profile = sketch21
pad21.setExpression("Length", "Params.pad21_length")
body23 = doc.addObject("PartDesign::Body", "Body022")

# Sketch on XY plane
sketch22 = body23.newObject("Sketcher::SketchObject", "Sketch021")
sketch22.AttachmentSupport = (doc.getObject("XY_Plane022"), [""])
sketch22.MapMode = "FlatFace"
sketch22.AttachmentOffset = App.Placement(Vector(0, 0, -16.5), App.Rotation())
sketch22.addGeometry(Part.Circle(Vector(8.4, 29.9, 0), Vector(0, 0, 1), 3.1), False)
sketch22.addConstraint([
    Sketcher.Constraint("Diameter", 0, 6.2),
    Sketcher.Constraint("DistanceX", -1, 1, 0, 3, 8.44),
    Sketcher.Constraint("DistanceY", -1, 1, 0, 3, 29.95),
])
sketch22.setExpression("Constraints[0]", "Params.sketch22_diameter")
pad22 = body23.newObject("PartDesign::Pad", "Pad021")
pad22.Profile = sketch22
pad22.setExpression("Length", "Params.pad22_length")
body24 = doc.addObject("PartDesign::Body", "Body023")

# Sketch on XY plane
sketch23 = body24.newObject("Sketcher::SketchObject", "Sketch022")
sketch23.AttachmentSupport = (doc.getObject("XY_Plane023"), [""])
sketch23.MapMode = "FlatFace"
sketch23.AttachmentOffset = App.Placement(Vector(0, 0, -16.5), App.Rotation())
sketch23.addGeometry(Part.Circle(Vector(66.6, 29.9, 0), Vector(0, 0, 1), 3.1), False)
sketch23.addConstraint([
    Sketcher.Constraint("Diameter", 0, 6.2),
    Sketcher.Constraint("DistanceX", -1, 1, 0, 3, 66.6),
    Sketcher.Constraint("DistanceY", -1, 1, 0, 3, 29.95),
])
sketch23.setExpression("Constraints[0]", "Params.sketch23_diameter")
pad23 = body24.newObject("PartDesign::Pad", "Pad022")
pad23.Profile = sketch23
pad23.setExpression("Length", "Params.pad23_length")
body25 = doc.addObject("PartDesign::Body", "Body024")

# Sketch on XY plane
sketch24 = body25.newObject("Sketcher::SketchObject", "Sketch023")
sketch24.AttachmentSupport = (doc.getObject("XY_Plane024"), [""])
sketch24.MapMode = "FlatFace"
sketch24.AttachmentOffset = App.Placement(Vector(0, 0, -17), App.Rotation())
sketch24.addGeometry(Part.Circle(Vector(66.6, 29.9, 0), Vector(0, 0, 1), 1.5), False)
sketch24.addConstraint([
    Sketcher.Constraint("Diameter", 0, 3.0),
    Sketcher.Constraint("DistanceX", -1, 1, 0, 3, 66.6),
    Sketcher.Constraint("DistanceY", -1, 1, 0, 3, 29.95),
])
sketch24.setExpression("Constraints[0]", "Params.sketch24_diameter")
pad24 = body25.newObject("PartDesign::Pad", "Pad023")
pad24.Profile = sketch24
pad24.setExpression("Length", "Params.pad24_length")
body26 = doc.addObject("PartDesign::Body", "Body025")

# Sketch on XY plane
sketch25 = body26.newObject("Sketcher::SketchObject", "Sketch024")
sketch25.AttachmentSupport = (doc.getObject("XY_Plane025"), [""])
sketch25.MapMode = "FlatFace"
sketch25.AttachmentOffset = App.Placement(Vector(0, 0, 8.5), App.Rotation())
add_polygon(sketch25, [(-2, 58), (-2, 50), (88, 50), (88, 58)])  # lines 0-3
sketch25.addConstraint([
    Sketcher.Constraint("Vertical", 0),
    Sketcher.Constraint("Horizontal", 1),
    Sketcher.Constraint("Vertical", 2),
    Sketcher.Constraint("Horizontal", 3),
    Sketcher.Constraint("DistanceY", 0, 2, 0, 1, 9.0),
    Sketcher.Constraint("DistanceX", 1, 1, 1, 2, 89.5),
    Sketcher.Constraint("DistanceX", 0, 2, -1, 1, 2.0),
    Sketcher.Constraint("DistanceY", -1, 1, 0, 2, 49.5),
])
sketch25.setExpression("Constraints[8]", "Params.sketch25_height")
sketch25.setExpression("Constraints[9]", "Params.sketch25_width")
pad25 = body26.newObject("PartDesign::Pad", "Pad024")
pad25.Profile = sketch25
pad25.setExpression("Length", "Params.pad25_length")
body27 = doc.addObject("PartDesign::Body", "Body026")

# Sketch on XY plane
sketch26 = body27.newObject("Sketcher::SketchObject", "Sketch025")
sketch26.AttachmentSupport = (doc.getObject("XY_Plane026"), [""])
sketch26.MapMode = "FlatFace"
sketch26.AttachmentOffset = App.Placement(Vector(0, 0, -16.5), App.Rotation())
add_polygon(sketch26, [(-2, 58), (-2, -8), (88, -8), (88, 58)])  # lines 0-3
sketch26.addConstraint([
    Sketcher.Constraint("Vertical", 0),
    Sketcher.Constraint("Horizontal", 1),
    Sketcher.Constraint("Vertical", 2),
    Sketcher.Constraint("Horizontal", 3),
    Sketcher.Constraint("DistanceY", 0, 2, 0, 1, 67.0),
    Sketcher.Constraint("DistanceX", 1, 1, 1, 2, 89.5),
    Sketcher.Constraint("DistanceX", 0, 2, -1, 1, 2.0),
    Sketcher.Constraint("DistanceY", 0, 2, -1, 1, 8.5),
])
sketch26.setExpression("Constraints[8]", "Params.sketch26_height")
sketch26.setExpression("Constraints[9]", "Params.sketch26_width")
pad26 = body27.newObject("PartDesign::Pad", "Pad025")
pad26.Profile = sketch26
pad26.setExpression("Length", "Params.pad26_length")
doc.recompute()

boolean7 = body27.newObject("PartDesign::Boolean", "Boolean006")
boolean7.Type = "Cut"
boolean7.addObjects([body26])
doc.recompute()

boolean8 = body27.newObject("PartDesign::Boolean", "Boolean007")
boolean8.Type = "Cut"
boolean8.addObjects([body25])
doc.recompute()

boolean9 = body27.newObject("PartDesign::Boolean", "Boolean008")
boolean9.Type = "Cut"
boolean9.addObjects([body24])
doc.recompute()

boolean10 = body27.newObject("PartDesign::Boolean", "Boolean009")
boolean10.Type = "Cut"
boolean10.addObjects([body23])
doc.recompute()

boolean11 = body27.newObject("PartDesign::Boolean", "Boolean010")
boolean11.Type = "Cut"
boolean11.addObjects([body22])
doc.recompute()

boolean12 = body27.newObject("PartDesign::Boolean", "Boolean011")
boolean12.Type = "Cut"
boolean12.addObjects([body21])
doc.recompute()

boolean13 = body27.newObject("PartDesign::Boolean", "Boolean012")
boolean13.Type = "Cut"
boolean13.addObjects([body20])
doc.recompute()

boolean14 = body27.newObject("PartDesign::Boolean", "Boolean013")
boolean14.Type = "Cut"
boolean14.addObjects([body19])
doc.recompute()

boolean15 = body27.newObject("PartDesign::Boolean", "Boolean014")
boolean15.Type = "Cut"
boolean15.addObjects([body18])
doc.recompute()

boolean16 = body27.newObject("PartDesign::Boolean", "Boolean015")
boolean16.Type = "Cut"
boolean16.addObjects([body17])
doc.recompute()

boolean17 = body27.newObject("PartDesign::Boolean", "Boolean016")
boolean17.Type = "Cut"
boolean17.addObjects([body16])
doc.recompute()

boolean18 = body27.newObject("PartDesign::Boolean", "Boolean017")
boolean18.Type = "Cut"
boolean18.addObjects([body15])
doc.recompute()

boolean19 = body27.newObject("PartDesign::Boolean", "Boolean018")
boolean19.Type = "Cut"
boolean19.addObjects([body14])
doc.recompute()

boolean20 = body27.newObject("PartDesign::Boolean", "Boolean019")
boolean20.Type = "Cut"
boolean20.addObjects([body13])
doc.recompute()

boolean21 = body27.newObject("PartDesign::Boolean", "Boolean020")
boolean21.Type = "Cut"
boolean21.addObjects([body12])
doc.recompute()

boolean22 = body27.newObject("PartDesign::Boolean", "Boolean021")
boolean22.Type = "Cut"
boolean22.addObjects([body11])
body28 = doc.addObject("PartDesign::Body", "Body027")

# Sketch on XY plane
sketch27 = body28.newObject("Sketcher::SketchObject", "Sketch026")
sketch27.AttachmentSupport = (doc.getObject("XY_Plane027"), [""])
sketch27.MapMode = "FlatFace"
sketch27.AttachmentOffset = App.Placement(Vector(0, 0, 4.5), App.Rotation())
sketch27.addGeometry(Part.Circle(Vector(-20, 33, 0), Vector(0, 0, 1), 1.2), False)
sketch27.addConstraint([
    Sketcher.Constraint("Diameter", 0, 2.4),
    Sketcher.Constraint("DistanceX", 0, 3, -1, 1, 20.0),
    Sketcher.Constraint("DistanceY", -1, 1, 0, 3, 33.0),
])
sketch27.setExpression("Constraints[0]", "Params.sketch27_diameter")
pad27 = body28.newObject("PartDesign::Pad", "Pad026")
pad27.Profile = sketch27
pad27.setExpression("Length", "Params.pad27_length")
body29 = doc.addObject("PartDesign::Body", "Body028")

# Sketch on XY plane
sketch28 = body29.newObject("Sketcher::SketchObject", "Sketch027")
sketch28.AttachmentSupport = (doc.getObject("XY_Plane028"), [""])
sketch28.MapMode = "FlatFace"
sketch28.addGeometry(Part.Circle(Vector(-20, 10, 0), Vector(0, 0, 1), 1.4), False)
sketch28.addConstraint([
    Sketcher.Constraint("Diameter", 0, 2.8),
    Sketcher.Constraint("DistanceX", 0, 3, -1, 1, 20.0),
    Sketcher.Constraint("DistanceY", -1, 1, 0, 3, 10.0),
])
sketch28.setExpression("Constraints[0]", "Params.sketch28_diameter")
pad28 = body29.newObject("PartDesign::Pad", "Pad027")
pad28.Profile = sketch28
pad28.setExpression("Length", "Params.pad28_length")
body30 = doc.addObject("PartDesign::Body", "Body029")

# Sketch on XY plane
sketch29 = body30.newObject("Sketcher::SketchObject", "Sketch028")
sketch29.AttachmentSupport = (doc.getObject("XY_Plane029"), [""])
sketch29.MapMode = "FlatFace"
sketch29.addGeometry(Part.Circle(Vector(-20, 33, 0), Vector(0, 0, 1), 1.4), False)
sketch29.addConstraint([
    Sketcher.Constraint("Diameter", 0, 2.8),
    Sketcher.Constraint("DistanceX", 0, 3, -1, 1, 20.0),
    Sketcher.Constraint("DistanceY", -1, 1, 0, 3, 33.0),
])
sketch29.setExpression("Constraints[0]", "Params.sketch29_diameter")
pad29 = body30.newObject("PartDesign::Pad", "Pad028")
pad29.Profile = sketch29
pad29.setExpression("Length", "Params.pad29_length")
body31 = doc.addObject("PartDesign::Body", "Body030")

# Sketch on XY plane
sketch30 = body31.newObject("Sketcher::SketchObject", "Sketch029")
sketch30.AttachmentSupport = (doc.getObject("XY_Plane030"), [""])
sketch30.MapMode = "FlatFace"
sketch30.AttachmentOffset = App.Placement(Vector(0, 0, 4.5), App.Rotation())
sketch30.addGeometry(Part.Circle(Vector(-20, 10, 0), Vector(0, 0, 1), 1.2), False)
sketch30.addConstraint([
    Sketcher.Constraint("Diameter", 0, 2.4),
    Sketcher.Constraint("DistanceX", 0, 3, -1, 1, 20.0),
    Sketcher.Constraint("DistanceY", -1, 1, 0, 3, 10.0),
])
sketch30.setExpression("Constraints[0]", "Params.sketch30_diameter")
pad30 = body31.newObject("PartDesign::Pad", "Pad029")
pad30.Profile = sketch30
pad30.setExpression("Length", "Params.pad30_length")
body32 = doc.addObject("PartDesign::Body", "Body031")

# Sketch on XY plane
sketch31 = body32.newObject("Sketcher::SketchObject", "Sketch030")
sketch31.AttachmentSupport = (doc.getObject("XY_Plane031"), [""])
sketch31.MapMode = "FlatFace"
add_polygon(sketch31, [(3.1, 0), (1.6, 2.7), (-1.6, 2.7), (-3.1, 0), (-1.6, -2.7), (1.6, -2.7)])  # lines 0-5
sketch31.addConstraint([
    Sketcher.Constraint("Horizontal", 1),
    Sketcher.Constraint("Horizontal", 4),
    Sketcher.Constraint("Symmetric", 0, 2, 3, 2, -1, 1),
    Sketcher.Constraint("Symmetric", 2, 2, 5, 2, -1, 1),
    Sketcher.Constraint("PointOnObject", 2, 2, -1),
    Sketcher.Constraint("Parallel", 2, 5),
    Sketcher.Constraint("Vertical", 1, 2, 3, 2),
    Sketcher.Constraint("Angle", 0, Q("119.999998 deg")),
    Sketcher.Constraint("DistanceX", 1, 2, 1, 1, 3.1),
    Sketcher.Constraint("Distance", 0, 3.1),
])
sketch31.setExpression("Constraints[14]", "Params.sketch31_width")
sketch31.setExpression("Constraints[15]", "Params.sketch31_length")
pad31 = body32.newObject("PartDesign::Pad", "Pad030")
pad31.Profile = sketch31
pad31.setExpression("Length", "Params.pad31_length")
body33 = doc.addObject("PartDesign::Body", "Body032")
doc.recompute()

body32.Placement = App.Placement(Vector(-20, 33, 0), App.Rotation(Vector(0, 0, 1), 30))
boolean23 = body33.newObject("PartDesign::Boolean", "Boolean022")
boolean23.Type = "Fuse"
boolean23.addObjects([body32])
body34 = doc.addObject("PartDesign::Body", "Body033")

# Sketch on XY plane
sketch32 = body34.newObject("Sketcher::SketchObject", "Sketch031")
sketch32.AttachmentSupport = (doc.getObject("XY_Plane033"), [""])
sketch32.MapMode = "FlatFace"
add_polygon(sketch32, [(3.1, 0), (1.6, 2.7), (-1.6, 2.7), (-3.1, 0), (-1.6, -2.7), (1.6, -2.7)])  # lines 0-5
sketch32.addConstraint([
    Sketcher.Constraint("Horizontal", 1),
    Sketcher.Constraint("Horizontal", 4),
    Sketcher.Constraint("Symmetric", 0, 2, 3, 2, -1, 1),
    Sketcher.Constraint("Symmetric", 2, 2, 5, 2, -1, 1),
    Sketcher.Constraint("PointOnObject", 2, 2, -1),
    Sketcher.Constraint("Parallel", 2, 5),
    Sketcher.Constraint("Vertical", 1, 2, 3, 2),
    Sketcher.Constraint("Angle", 0, Q("119.999998 deg")),
    Sketcher.Constraint("DistanceX", 1, 2, 1, 1, 3.1),
    Sketcher.Constraint("Distance", 0, 3.1),
])
sketch32.setExpression("Constraints[14]", "Params.sketch32_width")
sketch32.setExpression("Constraints[15]", "Params.sketch32_length")
pad32 = body34.newObject("PartDesign::Pad", "Pad031")
pad32.Profile = sketch32
pad32.setExpression("Length", "Params.pad32_length")
body35 = doc.addObject("PartDesign::Body", "Body034")
doc.recompute()

body34.Placement = App.Placement(Vector(-20, 10, 0), App.Rotation(Vector(0, 0, 1), 30))
boolean24 = body35.newObject("PartDesign::Boolean", "Boolean023")
boolean24.Type = "Fuse"
boolean24.addObjects([body34])
body36 = doc.addObject("PartDesign::Body", "Body035")

# Sketch on XY plane
sketch33 = body36.newObject("Sketcher::SketchObject", "Sketch032")
sketch33.AttachmentSupport = (doc.getObject("XY_Plane035"), [""])
sketch33.MapMode = "FlatFace"
sketch33.AttachmentOffset = App.Placement(Vector(0, 0, 3), App.Rotation())
add_polygon(sketch33, [(-23, 33), (-23, 10), (-17, 10), (-17, 33)])  # lines 0-3
sketch33.addConstraint([
    Sketcher.Constraint("Vertical", 0),
    Sketcher.Constraint("Horizontal", 1),
    Sketcher.Constraint("Vertical", 2),
    Sketcher.Constraint("Horizontal", 3),
    Sketcher.Constraint("DistanceY", 0, 2, 0, 1, 23.0),
    Sketcher.Constraint("DistanceX", 1, 1, 1, 2, 5.4),
    Sketcher.Constraint("DistanceY", -1, 1, 0, 2, 10.0),
    Sketcher.Constraint("DistanceX", 0, 2, -1, 1, 22.69),
])
sketch33.setExpression("Constraints[8]", "Params.sketch33_height")
sketch33.setExpression("Constraints[9]", "Params.sketch33_width")
pad33 = body36.newObject("PartDesign::Pad", "Pad032")
pad33.Profile = sketch33
pad33.setExpression("Length", "Params.pad33_length")
doc.recompute()

boolean25 = body36.newObject("PartDesign::Boolean", "Boolean024")
boolean25.Type = "Fuse"
boolean25.addObjects([body33])
doc.recompute()

boolean26 = body36.newObject("PartDesign::Boolean", "Boolean025")
boolean26.Type = "Fuse"
boolean26.addObjects([body35])
doc.recompute()

boolean27 = body36.newObject("PartDesign::Boolean", "Boolean026")
boolean27.Type = "Cut"
boolean27.addObjects([body31])
doc.recompute()

boolean28 = body36.newObject("PartDesign::Boolean", "Boolean027")
boolean28.Type = "Cut"
boolean28.addObjects([body30])
doc.recompute()

boolean29 = body36.newObject("PartDesign::Boolean", "Boolean028")
boolean29.Type = "Cut"
boolean29.addObjects([body29])
doc.recompute()

boolean30 = body36.newObject("PartDesign::Boolean", "Boolean029")
boolean30.Type = "Cut"
boolean30.addObjects([body28])

doc.recompute()
